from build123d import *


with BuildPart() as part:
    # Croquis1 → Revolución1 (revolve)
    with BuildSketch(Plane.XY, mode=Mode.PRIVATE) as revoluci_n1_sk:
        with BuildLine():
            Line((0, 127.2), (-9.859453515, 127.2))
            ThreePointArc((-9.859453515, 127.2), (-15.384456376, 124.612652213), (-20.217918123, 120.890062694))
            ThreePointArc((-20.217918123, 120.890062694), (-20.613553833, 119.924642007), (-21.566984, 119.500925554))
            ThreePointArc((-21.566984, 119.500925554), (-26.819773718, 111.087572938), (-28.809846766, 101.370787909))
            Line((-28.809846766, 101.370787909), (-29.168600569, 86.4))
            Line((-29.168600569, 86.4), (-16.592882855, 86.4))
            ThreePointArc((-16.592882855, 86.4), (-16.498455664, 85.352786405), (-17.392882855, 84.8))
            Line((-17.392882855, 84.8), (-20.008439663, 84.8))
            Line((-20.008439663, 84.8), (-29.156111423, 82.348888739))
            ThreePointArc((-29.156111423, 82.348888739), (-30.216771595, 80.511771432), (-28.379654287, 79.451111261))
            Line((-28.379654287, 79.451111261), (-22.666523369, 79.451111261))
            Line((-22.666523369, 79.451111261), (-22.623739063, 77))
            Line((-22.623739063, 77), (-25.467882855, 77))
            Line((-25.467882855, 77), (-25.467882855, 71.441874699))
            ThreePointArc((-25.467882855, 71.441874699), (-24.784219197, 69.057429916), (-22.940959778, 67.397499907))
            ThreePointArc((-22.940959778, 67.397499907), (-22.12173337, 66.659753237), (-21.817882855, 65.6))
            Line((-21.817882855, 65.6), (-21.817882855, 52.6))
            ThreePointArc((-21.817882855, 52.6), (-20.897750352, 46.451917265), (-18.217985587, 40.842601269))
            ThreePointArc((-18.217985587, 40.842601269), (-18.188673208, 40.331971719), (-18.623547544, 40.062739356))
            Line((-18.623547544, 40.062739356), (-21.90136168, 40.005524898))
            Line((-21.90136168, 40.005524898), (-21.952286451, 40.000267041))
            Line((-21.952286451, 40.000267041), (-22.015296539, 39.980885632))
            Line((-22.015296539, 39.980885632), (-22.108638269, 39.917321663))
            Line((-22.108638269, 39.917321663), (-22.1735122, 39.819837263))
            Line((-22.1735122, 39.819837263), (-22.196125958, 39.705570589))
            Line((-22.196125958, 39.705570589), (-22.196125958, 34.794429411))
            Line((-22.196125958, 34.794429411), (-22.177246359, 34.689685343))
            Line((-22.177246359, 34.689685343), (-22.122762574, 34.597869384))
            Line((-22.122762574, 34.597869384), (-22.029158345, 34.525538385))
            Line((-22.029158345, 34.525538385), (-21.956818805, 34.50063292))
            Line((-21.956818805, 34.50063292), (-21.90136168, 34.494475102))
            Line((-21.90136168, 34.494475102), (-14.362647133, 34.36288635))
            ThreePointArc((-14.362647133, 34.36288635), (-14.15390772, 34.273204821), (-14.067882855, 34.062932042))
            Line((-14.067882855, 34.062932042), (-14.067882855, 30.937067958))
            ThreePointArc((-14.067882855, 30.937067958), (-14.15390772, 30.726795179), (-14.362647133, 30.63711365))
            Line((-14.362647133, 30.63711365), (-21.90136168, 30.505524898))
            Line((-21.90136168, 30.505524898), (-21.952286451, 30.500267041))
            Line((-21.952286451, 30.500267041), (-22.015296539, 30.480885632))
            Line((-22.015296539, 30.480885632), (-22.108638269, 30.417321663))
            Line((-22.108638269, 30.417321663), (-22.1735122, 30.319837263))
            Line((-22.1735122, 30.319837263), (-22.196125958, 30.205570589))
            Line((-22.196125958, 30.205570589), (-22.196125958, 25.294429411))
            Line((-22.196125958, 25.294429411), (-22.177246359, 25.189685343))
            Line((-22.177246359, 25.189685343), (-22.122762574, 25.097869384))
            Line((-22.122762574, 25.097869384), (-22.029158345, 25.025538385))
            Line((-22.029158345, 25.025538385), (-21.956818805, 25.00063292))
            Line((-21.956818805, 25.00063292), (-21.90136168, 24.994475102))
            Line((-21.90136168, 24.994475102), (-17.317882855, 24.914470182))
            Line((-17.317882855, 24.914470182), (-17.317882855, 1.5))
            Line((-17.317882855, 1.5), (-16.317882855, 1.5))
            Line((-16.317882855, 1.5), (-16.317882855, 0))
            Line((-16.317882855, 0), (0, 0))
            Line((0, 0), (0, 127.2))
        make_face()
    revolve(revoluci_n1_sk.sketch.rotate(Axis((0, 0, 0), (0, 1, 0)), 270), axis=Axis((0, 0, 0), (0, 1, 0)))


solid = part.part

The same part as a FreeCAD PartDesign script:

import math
import FreeCAD as App
import Part
import Sketcher
from FreeCAD import Vector
Q = App.Units.Quantity

doc = App.newDocument("Part")
params = doc.addObject("Spreadsheet::Sheet", "Params")
for row, (alias, value) in enumerate([
    ("sketch1_radius", "28 mm"),
    ("sketch1_radius2", "1 mm"),
    ("sketch1_radius3", "2 mm"),
    ("sketch1_radius4", "21 mm"),
    ("sketch1_radius5", "1.4 mm"),
    ("revolution_angle", "360 deg"),
], start=1):
    params.set(f"A{row}", alias)
    params.set(f"B{row}", "=" + value)
    params.setAlias(f"B{row}", alias)

body = doc.addObject("PartDesign::Body", "Body")

sketch1 = body.newObject("Sketcher::SketchObject", "Sketch")
sketch1.AttachmentSupport = (doc.getObject("XY_Plane"), [""])
sketch1.MapMode = "FlatFace"
sketch1.addGeometry(Part.LineSegment(Vector(0, 127.2, 0), Vector(-9.86, 127.2, 0)), False)
sketch1.addGeometry(Part.ArcOfCircle(Part.Circle(Vector(-0.82, 100.7, 0), Vector(0, 0, 1), 28), math.radians(109), math.radians(134)), False)
sketch1.addGeometry(Part.ArcOfCircle(Part.Circle(Vector(-21.62, 120.9, 0), Vector(0, 0, 1), 1.4), math.radians(-88), math.radians(0)), False)
sketch1.addGeometry(Part.ArcOfCircle(Part.Circle(Vector(-0.82, 100.7, 0), Vector(0, 0, 1), 28), math.radians(138), math.radians(179)), False)
sketch1.addGeometry(Part.LineSegment(Vector(-28.81, 101.37, 0), Vector(-29.17, 86.4, 0)), False)
sketch1.addGeometry(Part.LineSegment(Vector(-29.17, 86.4, 0), Vector(-16.59, 86.4, 0)), False)
sketch1.addGeometry(Part.ArcOfCircle(Part.Circle(Vector(-17.39, 85.8, 0), Vector(0, 0, 1), 1), math.radians(-90), math.radians(37)), False)
sketch1.addGeometry(Part.LineSegment(Vector(-17.39, 84.8, 0), Vector(-20.01, 84.8, 0)), False)
sketch1.addGeometry(Part.LineSegment(Vector(-20.01, 84.8, 0), Vector(-29.16, 82.35, 0)), False)
sketch1.addGeometry(Part.ArcOfCircle(Part.Circle(Vector(-28.77, 80.9, 0), Vector(0, 0, 1), 1.5), math.radians(105), math.radians(285)), False)
sketch1.addGeometry(Part.LineSegment(Vector(-28.38, 79.45, 0), Vector(-22.67, 79.45, 0)), False)
sketch1.addGeometry(Part.LineSegment(Vector(-22.67, 79.45, 0), Vector(-22.62, 77, 0)), False)
sketch1.addGeometry(Part.LineSegment(Vector(-22.62, 77, 0), Vector(-25.47, 77, 0)), False)
sketch1.addGeometry(Part.LineSegment(Vector(-25.47, 77, 0), Vector(-25.47, 71.44, 0)), False)
sketch1.addGeometry(Part.ArcOfCircle(Part.Circle(Vector(-20.97, 71.44, 0), Vector(0, 0, 1), 4.5), math.radians(-180), math.radians(-116)), False)
sketch1.addGeometry(Part.ArcOfCircle(Part.Circle(Vector(-23.82, 65.6, 0), Vector(0, 0, 1), 2), math.radians(0), math.radians(64)), False)
sketch1.addGeometry(Part.LineSegment(Vector(-21.82, 65.6, 0), Vector(-21.82, 52.6, 0)), False)
sketch1.addGeometry(Part.ArcOfCircle(Part.Circle(Vector(-0.82, 52.6, 0), Vector(0, 0, 1), 21), math.radians(180), math.radians(214)), False)
sketch1.addGeometry(Part.ArcOfCircle(Part.Circle(Vector(-18.63, 40.56, 0), Vector(0, 0, 1), 0.5), math.radians(-89), math.radians(34)), False)
sketch1.addGeometry(Part.LineSegment(Vector(-18.62, 40.06, 0), Vector(-21.9, 40.01, 0)), False)
sketch1.addGeometry(Part.LineSegment(Vector(-21.9, 40.01, 0), Vector(-21.95, 40, 0)), False)
sketch1.addGeometry(Part.LineSegment(Vector(-21.95, 40, 0), Vector(-22.02, 39.98, 0)), False)
sketch1.addGeometry(Part.LineSegment(Vector(-22.02, 39.98, 0), Vector(-22.11, 39.92, 0)), False)
sketch1.addGeometry(Part.LineSegment(Vector(-22.11, 39.92, 0), Vector(-22.17, 39.82, 0)), False)
sketch1.addGeometry(Part.LineSegment(Vector(-22.17, 39.82, 0), Vector(-22.2, 39.71, 0)), False)
sketch1.addGeometry(Part.LineSegment(Vector(-22.2, 39.71, 0), Vector(-22.2, 34.79, 0)), False)
sketch1.addGeometry(Part.LineSegment(Vector(-22.2, 34.79, 0), Vector(-22.18, 34.69, 0)), False)
sketch1.addGeometry(Part.LineSegment(Vector(-22.18, 34.69, 0), Vector(-22.12, 34.6, 0)), False)
sketch1.addGeometry(Part.LineSegment(Vector(-22.12, 34.6, 0), Vector(-22.03, 34.53, 0)), False)
sketch1.addGeometry(Part.LineSegment(Vector(-22.03, 34.53, 0), Vector(-21.96, 34.5, 0)), False)
sketch1.addGeometry(Part.LineSegment(Vector(-21.96, 34.5, 0), Vector(-21.9, 34.49, 0)), False)
sketch1.addGeometry(Part.LineSegment(Vector(-21.9, 34.49, 0), Vector(-14.36, 34.36, 0)), False)
sketch1.addGeometry(Part.ArcOfCircle(Part.Circle(Vector(-14.37, 34.06, 0), Vector(0, 0, 1), 0.3), math.radians(0), math.radians(89)), False)
sketch1.addGeometry(Part.LineSegment(Vector(-14.07, 34.06, 0), Vector(-14.07, 30.94, 0)), False)
sketch1.addGeometry(Part.ArcOfCircle(Part.Circle(Vector(-14.37, 30.94, 0), Vector(0, 0, 1), 0.3), math.radians(-89), math.radians(0)), False)
sketch1.addGeometry(Part.LineSegment(Vector(-14.36, 30.64, 0), Vector(-21.9, 30.51, 0)), False)
sketch1.addGeometry(Part.LineSegment(Vector(-21.9, 30.51, 0), Vector(-21.95, 30.5, 0)), False)
sketch1.addGeometry(Part.LineSegment(Vector(-21.95, 30.5, 0), Vector(-22.02, 30.48, 0)), False)
sketch1.addGeometry(Part.LineSegment(Vector(-22.02, 30.48, 0), Vector(-22.11, 30.42, 0)), False)
sketch1.addGeometry(Part.LineSegment(Vector(-22.11, 30.42, 0), Vector(-22.17, 30.32, 0)), False)
sketch1.addGeometry(Part.LineSegment(Vector(-22.17, 30.32, 0), Vector(-22.2, 30.21, 0)), False)
sketch1.addGeometry(Part.LineSegment(Vector(-22.2, 30.21, 0), Vector(-22.2, 25.29, 0)), False)
sketch1.addGeometry(Part.LineSegment(Vector(-22.2, 25.29, 0), Vector(-22.18, 25.19, 0)), False)
sketch1.addGeometry(Part.LineSegment(Vector(-22.18, 25.19, 0), Vector(-22.12, 25.1, 0)), False)
sketch1.addGeometry(Part.LineSegment(Vector(-22.12, 25.1, 0), Vector(-22.03, 25.03, 0)), False)
sketch1.addGeometry(Part.LineSegment(Vector(-22.03, 25.03, 0), Vector(-21.96, 25, 0)), False)
sketch1.addGeometry(Part.LineSegment(Vector(-21.96, 25, 0), Vector(-21.9, 24.99, 0)), False)
sketch1.addGeometry(Part.LineSegment(Vector(-21.9, 24.99, 0), Vector(-17.32, 24.91, 0)), False)
sketch1.addGeometry(Part.LineSegment(Vector(-17.32, 24.91, 0), Vector(-17.32, 1.5, 0)), False)
sketch1.addGeometry(Part.LineSegment(Vector(-17.32, 1.5, 0), Vector(-16.32, 1.5, 0)), False)
sketch1.addGeometry(Part.LineSegment(Vector(-16.32, 1.5, 0), Vector(-16.32, 0, 0)), False)
sketch1.addGeometry(Part.LineSegment(Vector(-16.32, 0, 0), Vector(0, 0, 0)), False)
sketch1.addGeometry(Part.LineSegment(Vector(0, 0, 0), Vector(0, 127.2, 0)), False)
sketch1.addConstraint(Sketcher.Constraint("Coincident", 0, 2, 1, 1))
sketch1.addConstraint(Sketcher.Constraint("Coincident", 1, 2, 2, 2))
sketch1.addConstraint(Sketcher.Constraint("Coincident", 2, 1, 3, 1))
sketch1.addConstraint(Sketcher.Constraint("Tangent", 3, 2, 4, 1))
sketch1.addConstraint(Sketcher.Constraint("Coincident", 4, 2, 5, 1))
sketch1.addConstraint(Sketcher.Constraint("Coincident", 5, 2, 6, 2))
sketch1.addConstraint(Sketcher.Constraint("Tangent", 6, 1, 7, 1))
sketch1.addConstraint(Sketcher.Constraint("Coincident", 7, 2, 8, 1))
sketch1.addConstraint(Sketcher.Constraint("Tangent", 8, 2, 9, 1))
sketch1.addConstraint(Sketcher.Constraint("Coincident", 9, 2, 10, 1))
sketch1.addConstraint(Sketcher.Constraint("Coincident", 10, 2, 11, 1))
sketch1.addConstraint(Sketcher.Constraint("Coincident", 11, 2, 12, 1))
sketch1.addConstraint(Sketcher.Constraint("Coincident", 12, 2, 13, 1))
sketch1.addConstraint(Sketcher.Constraint("Tangent", 13, 2, 14, 1))
sketch1.addConstraint(Sketcher.Constraint("Tangent", 14, 2, 15, 2))
sketch1.addConstraint(Sketcher.Constraint("Tangent", 15, 1, 16, 1))
sketch1.addConstraint(Sketcher.Constraint("Tangent", 16, 2, 17, 1))
sketch1.addConstraint(Sketcher.Constraint("Tangent", 17, 2, 18, 2))
sketch1.addConstraint(Sketcher.Constraint("Tangent", 18, 1, 19, 1))
sketch1.addConstraint(Sketcher.Constraint("Coincident", 19, 2, 20, 1))
sketch1.addConstraint(Sketcher.Constraint("Coincident", 20, 2, 21, 1))
sketch1.addConstraint(Sketcher.Constraint("Coincident", 21, 2, 22, 1))
sketch1.addConstraint(Sketcher.Constraint("Coincident", 22, 2, 23, 1))
sketch1.addConstraint(Sketcher.Constraint("Coincident", 23, 2, 24, 1))
sketch1.addConstraint(Sketcher.Constraint("Coincident", 24, 2, 25, 1))
sketch1.addConstraint(Sketcher.Constraint("Coincident", 25, 2, 26, 1))
sketch1.addConstraint(Sketcher.Constraint("Coincident", 26, 2, 27, 1))
sketch1.addConstraint(Sketcher.Constraint("Coincident", 27, 2, 28, 1))
sketch1.addConstraint(Sketcher.Constraint("Coincident", 28, 2, 29, 1))
sketch1.addConstraint(Sketcher.Constraint("Coincident", 29, 2, 30, 1))
sketch1.addConstraint(Sketcher.Constraint("Coincident", 30, 2, 31, 1))
sketch1.addConstraint(Sketcher.Constraint("Tangent", 31, 2, 32, 2))
sketch1.addConstraint(Sketcher.Constraint("Tangent", 32, 1, 33, 1))
sketch1.addConstraint(Sketcher.Constraint("Tangent", 33, 2, 34, 2))
sketch1.addConstraint(Sketcher.Constraint("Tangent", 34, 1, 35, 1))
sketch1.addConstraint(Sketcher.Constraint("Coincident", 35, 2, 36, 1))
sketch1.addConstraint(Sketcher.Constraint("Coincident", 36, 2, 37, 1))
sketch1.addConstraint(Sketcher.Constraint("Coincident", 37, 2, 38, 1))
sketch1.addConstraint(Sketcher.Constraint("Coincident", 38, 2, 39, 1))
sketch1.addConstraint(Sketcher.Constraint("Coincident", 39, 2, 40, 1))
sketch1.addConstraint(Sketcher.Constraint("Coincident", 40, 2, 41, 1))
sketch1.addConstraint(Sketcher.Constraint("Coincident", 41, 2, 42, 1))
sketch1.addConstraint(Sketcher.Constraint("Coincident", 42, 2, 43, 1))
sketch1.addConstraint(Sketcher.Constraint("Coincident", 43, 2, 44, 1))
sketch1.addConstraint(Sketcher.Constraint("Coincident", 44, 2, 45, 1))
sketch1.addConstraint(Sketcher.Constraint("Coincident", 45, 2, 46, 1))
sketch1.addConstraint(Sketcher.Constraint("Coincident", 46, 2, 47, 1))
sketch1.addConstraint(Sketcher.Constraint("Coincident", 47, 2, 48, 1))
sketch1.addConstraint(Sketcher.Constraint("Coincident", 48, 2, 49, 1))
sketch1.addConstraint(Sketcher.Constraint("Coincident", 49, 2, 50, 1))
sketch1.addConstraint(Sketcher.Constraint("Coincident", 50, 2, 51, 1))
sketch1.addConstraint(Sketcher.Constraint("Coincident", 51, 2, 52, 1))
sketch1.addConstraint(Sketcher.Constraint("Coincident", 52, 2, 0, 1))
sketch1.addConstraint(Sketcher.Constraint("Horizontal", 0))
sketch1.addConstraint(Sketcher.Constraint("Horizontal", 5))
sketch1.addConstraint(Sketcher.Constraint("Horizontal", 7))
sketch1.addConstraint(Sketcher.Constraint("Horizontal", 10))
sketch1.addConstraint(Sketcher.Constraint("Horizontal", 12))
sketch1.addConstraint(Sketcher.Constraint("Vertical", 13))
sketch1.addConstraint(Sketcher.Constraint("Vertical", 16))
sketch1.addConstraint(Sketcher.Constraint("Vertical", 25))
sketch1.addConstraint(Sketcher.Constraint("Vertical", 33))
sketch1.addConstraint(Sketcher.Constraint("Vertical", 41))
sketch1.addConstraint(Sketcher.Constraint("Vertical", 48))
sketch1.addConstraint(Sketcher.Constraint("Horizontal", 49))
sketch1.addConstraint(Sketcher.Constraint("Vertical", 50))
sketch1.addConstraint(Sketcher.Constraint("Horizontal", 51))
sketch1.addConstraint(Sketcher.Constraint("Vertical", 52))
sketch1.addConstraint(Sketcher.Constraint("Coincident", 51, 2, -1, 1))
sketch1.addConstraint(Sketcher.Constraint("Coincident", 3, 3, 1, 3))
sketch1.addConstraint(Sketcher.Constraint("Equal", 1, 3))
sketch1.addConstraint(Sketcher.Constraint("Equal", 32, 34))
sketch1.addConstraint(Sketcher.Constraint("Perpendicular", 11, 19))
sketch1.addConstraint(Sketcher.Constraint("Parallel", 19, 35))
sketch1.addConstraint(Sketcher.Constraint("Parallel", 20, 36))
sketch1.addConstraint(Sketcher.Constraint("Parallel", 21, 37))
sketch1.addConstraint(Sketcher.Constraint("Parallel", 22, 38))
sketch1.addConstraint(Sketcher.Constraint("Parallel", 23, 39))
sketch1.addConstraint(Sketcher.Constraint("Parallel", 24, 40))
sketch1.addConstraint(Sketcher.Constraint("Parallel", 26, 42))
sketch1.addConstraint(Sketcher.Constraint("Parallel", 27, 43))
sketch1.addConstraint(Sketcher.Constraint("Parallel", 28, 44))
sketch1.addConstraint(Sketcher.Constraint("Parallel", 29, 45))
sketch1.addConstraint(Sketcher.Constraint("Parallel", 30, 46))
sketch1.addConstraint(Sketcher.Constraint("Parallel", 31, 47))
sketch1.addConstraint(Sketcher.Constraint("Vertical", 3, 3, 17, 3))
sketch1.addConstraint(Sketcher.Constraint("Vertical", 19, 2, 30, 2))
sketch1.addConstraint(Sketcher.Constraint("Vertical", 31, 2, 34, 1))
sketch1.addConstraint(Sketcher.Constraint("Vertical", 30, 2, 35, 2))
sketch1.addConstraint(Sketcher.Constraint("Vertical", 20, 2, 36, 2))
sketch1.addConstraint(Sketcher.Constraint("Vertical", 21, 2, 37, 2))
sketch1.addConstraint(Sketcher.Constraint("Vertical", 22, 2, 38, 2))
sketch1.addConstraint(Sketcher.Constraint("Vertical", 23, 2, 39, 2))
sketch1.addConstraint(Sketcher.Constraint("Vertical", 25, 2, 40, 2))
sketch1.addConstraint(Sketcher.Constraint("Vertical", 26, 2, 42, 2))
sketch1.addConstraint(Sketcher.Constraint("Vertical", 27, 2, 43, 2))
sketch1.addConstraint(Sketcher.Constraint("Vertical", 28, 2, 44, 2))
sketch1.addConstraint(Sketcher.Constraint("Vertical", 29, 2, 45, 2))
sketch1.addConstraint(Sketcher.Constraint("Vertical", 35, 2, 46, 2))
sketch1.addConstraint(Sketcher.Constraint("Equal", 25, 41))
sketch1.addConstraint(Sketcher.Constraint("Radius", 1, Q("28 mm")))
sketch1.addConstraint(Sketcher.Constraint("Radius", 6, Q("1 mm")))
sketch1.addConstraint(Sketcher.Constraint("Radius", 15, Q("2 mm")))
sketch1.addConstraint(Sketcher.Constraint("Radius", 17, Q("21 mm")))
sketch1.addConstraint(Sketcher.Constraint("Radius", 2, Q("1.4 mm")))
sketch1.addConstraint(Sketcher.Constraint("Radius", 9, Q("1.5 mm")))
sketch1.addConstraint(Sketcher.Constraint("Radius", 14, Q("4.5 mm")))
sketch1.addConstraint(Sketcher.Constraint("Radius", 18, Q("0.5 mm")))
sketch1.addConstraint(Sketcher.Constraint("Radius", 32, Q("0.3 mm")))
sketch1.addConstraint(Sketcher.Constraint("DistanceX", 49, 1, 49, 2, Q("1 mm")))
sketch1.addConstraint(Sketcher.Constraint("DistanceY", 16, 2, 16, 1, Q("13 mm")))
sketch1.addConstraint(Sketcher.Constraint("Angle", 8, Q("-165 deg")))
sketch1.addConstraint(Sketcher.Constraint("Angle", 11, Q("-89 deg")))
sketch1.addConstraint(Sketcher.Constraint("DistanceY", 50, 2, 50, 1, Q("1.5 mm")))
sketch1.addConstraint(Sketcher.Constraint("DistanceY", 52, 1, 52, 2, Q("127.2 mm")))
sketch1.addConstraint(Sketcher.Constraint("DistanceY", -1, 1, 11, 2, Q("77 mm")))
sketch1.addConstraint(Sketcher.Constraint("DistanceY", -1, 1, 1, 3, Q("100.7 mm")))
sketch1.addConstraint(Sketcher.Constraint("DistanceY", -1, 1, 2, 3, Q("120.9 mm")))
sketch1.addConstraint(Sketcher.Constraint("DistanceY", -1, 1, 6, 3, Q("85.8 mm")))
sketch1.addConstraint(Sketcher.Constraint("DistanceY", -1, 1, 9, 3, Q("80.9 mm")))
sketch1.addConstraint(Sketcher.Constraint("DistanceY", -1, 1, 15, 3, Q("65.6 mm")))
sketch1.addConstraint(Sketcher.Constraint("DistanceY", -1, 1, 4, 2, Q("86.4 mm")))
sketch1.addConstraint(Sketcher.Constraint("DistanceX", 10, 1, 10, 2, Q("5.713131 mm")))
sketch1.addConstraint(Sketcher.Constraint("DistanceY", 25, 2, 25, 1, Q("4.911141 mm")))
sketch1.addConstraint(Sketcher.Constraint("DistanceY", 48, 2, 48, 1, Q("23.41447 mm")))
sketch1.addConstraint(Sketcher.Constraint("DistanceX", 4, 2, -1, 1, Q("29.168601 mm")))
sketch1.addConstraint(Sketcher.Constraint("DistanceY", -1, 1, 14, 2, Q("67.3975 mm")))
sketch1.addConstraint(Sketcher.Constraint("DistanceY", -1, 1, 17, 2, Q("40.842601 mm")))
sketch1.addConstraint(Sketcher.Constraint("Distance", 22, Q("0.112929 mm")))
sketch1.addConstraint(Sketcher.Constraint("Distance", 26, Q("0.106432 mm")))
sketch1.addConstraint(Sketcher.Constraint("DistanceX", 0, 2, 0, 1, Q("9.859454 mm")))
sketch1.addConstraint(Sketcher.Constraint("DistanceX", 5, 1, 5, 2, Q("12.575718 mm")))
sketch1.addConstraint(Sketcher.Constraint("DistanceX", 7, 2, 7, 1, Q("2.615557 mm")))
sketch1.addConstraint(Sketcher.Constraint("DistanceX", 12, 2, 12, 1, Q("2.844144 mm")))
sketch1.addConstraint(Sketcher.Constraint("DistanceX", 51, 1, 51, 2, Q("16.317883 mm")))
sketch1.addConstraint(Sketcher.Constraint("DistanceY", 33, 2, 33, 1, Q("3.125864 mm")))
sketch1.addConstraint(Sketcher.Constraint("DistanceX", 1, 2, -1, 1, Q("20.217918 mm")))
sketch1.addConstraint(Sketcher.Constraint("DistanceX", 19, 2, -1, 1, Q("21.901362 mm")))
sketch1.addConstraint(Sketcher.Constraint("DistanceX", 22, 2, -1, 1, Q("22.108638 mm")))
sketch1.addConstraint(Sketcher.Constraint("DistanceY", -1, 1, 22, 2, Q("39.917322 mm")))
sketch1.addConstraint(Sketcher.Constraint("DistanceY", -1, 1, 24, 2, Q("39.705571 mm")))
sketch1.addConstraint(Sketcher.Constraint("DistanceY", -1, 1, 27, 2, Q("34.597869 mm")))
sketch1.addConstraint(Sketcher.Constraint("DistanceX", 28, 2, -1, 1, Q("22.029158 mm")))
sketch1.addConstraint(Sketcher.Constraint("DistanceY", -1, 1, 28, 2, Q("34.525538 mm")))
sketch1.addConstraint(Sketcher.Constraint("DistanceX", 29, 2, -1, 1, Q("21.956819 mm")))
sketch1.addConstraint(Sketcher.Constraint("DistanceY", -1, 1, 38, 2, Q("30.417322 mm")))
sketch1.addConstraint(Sketcher.Constraint("Distance", 20, Q("0.051195 mm")))
sketch1.addConstraint(Sketcher.Constraint("Distance", 21, Q("0.065924 mm")))
sketch1.addConstraint(Sketcher.Constraint("Distance", 23, Q("0.117098 mm")))
sketch1.addConstraint(Sketcher.Constraint("Distance", 24, Q("0.116483 mm")))
sketch1.addConstraint(Sketcher.Constraint("Distance", 27, Q("0.106764 mm")))
sketch1.addConstraint(Sketcher.Constraint("Distance", 28, Q("0.118294 mm")))
sketch1.addConstraint(Sketcher.Constraint("Distance", 29, Q("0.076507 mm")))
sketch1.addConstraint(Sketcher.Constraint("DistanceX", 20, 2, -1, 1, Q("21.952286 mm")))
sketch1.addConstraint(Sketcher.Constraint("DistanceX", 23, 2, -1, 1, Q("22.173512 mm")))
sketch1.setExpression("Constraints[100]", "Params.sketch1_radius")
sketch1.setExpression("Constraints[101]", "Params.sketch1_radius2")
sketch1.setExpression("Constraints[102]", "Params.sketch1_radius3")
sketch1.setExpression("Constraints[103]", "Params.sketch1_radius4")
sketch1.setExpression("Constraints[104]", "Params.sketch1_radius5")
revolution = body.newObject("PartDesign::Revolution", "Revolution")
revolution.Profile = sketch1
revolution.ReferenceAxis = (sketch1, ["V_Axis"])
revolution.setExpression("Angle", "Params.revolution_angle")

doc.recompute()
